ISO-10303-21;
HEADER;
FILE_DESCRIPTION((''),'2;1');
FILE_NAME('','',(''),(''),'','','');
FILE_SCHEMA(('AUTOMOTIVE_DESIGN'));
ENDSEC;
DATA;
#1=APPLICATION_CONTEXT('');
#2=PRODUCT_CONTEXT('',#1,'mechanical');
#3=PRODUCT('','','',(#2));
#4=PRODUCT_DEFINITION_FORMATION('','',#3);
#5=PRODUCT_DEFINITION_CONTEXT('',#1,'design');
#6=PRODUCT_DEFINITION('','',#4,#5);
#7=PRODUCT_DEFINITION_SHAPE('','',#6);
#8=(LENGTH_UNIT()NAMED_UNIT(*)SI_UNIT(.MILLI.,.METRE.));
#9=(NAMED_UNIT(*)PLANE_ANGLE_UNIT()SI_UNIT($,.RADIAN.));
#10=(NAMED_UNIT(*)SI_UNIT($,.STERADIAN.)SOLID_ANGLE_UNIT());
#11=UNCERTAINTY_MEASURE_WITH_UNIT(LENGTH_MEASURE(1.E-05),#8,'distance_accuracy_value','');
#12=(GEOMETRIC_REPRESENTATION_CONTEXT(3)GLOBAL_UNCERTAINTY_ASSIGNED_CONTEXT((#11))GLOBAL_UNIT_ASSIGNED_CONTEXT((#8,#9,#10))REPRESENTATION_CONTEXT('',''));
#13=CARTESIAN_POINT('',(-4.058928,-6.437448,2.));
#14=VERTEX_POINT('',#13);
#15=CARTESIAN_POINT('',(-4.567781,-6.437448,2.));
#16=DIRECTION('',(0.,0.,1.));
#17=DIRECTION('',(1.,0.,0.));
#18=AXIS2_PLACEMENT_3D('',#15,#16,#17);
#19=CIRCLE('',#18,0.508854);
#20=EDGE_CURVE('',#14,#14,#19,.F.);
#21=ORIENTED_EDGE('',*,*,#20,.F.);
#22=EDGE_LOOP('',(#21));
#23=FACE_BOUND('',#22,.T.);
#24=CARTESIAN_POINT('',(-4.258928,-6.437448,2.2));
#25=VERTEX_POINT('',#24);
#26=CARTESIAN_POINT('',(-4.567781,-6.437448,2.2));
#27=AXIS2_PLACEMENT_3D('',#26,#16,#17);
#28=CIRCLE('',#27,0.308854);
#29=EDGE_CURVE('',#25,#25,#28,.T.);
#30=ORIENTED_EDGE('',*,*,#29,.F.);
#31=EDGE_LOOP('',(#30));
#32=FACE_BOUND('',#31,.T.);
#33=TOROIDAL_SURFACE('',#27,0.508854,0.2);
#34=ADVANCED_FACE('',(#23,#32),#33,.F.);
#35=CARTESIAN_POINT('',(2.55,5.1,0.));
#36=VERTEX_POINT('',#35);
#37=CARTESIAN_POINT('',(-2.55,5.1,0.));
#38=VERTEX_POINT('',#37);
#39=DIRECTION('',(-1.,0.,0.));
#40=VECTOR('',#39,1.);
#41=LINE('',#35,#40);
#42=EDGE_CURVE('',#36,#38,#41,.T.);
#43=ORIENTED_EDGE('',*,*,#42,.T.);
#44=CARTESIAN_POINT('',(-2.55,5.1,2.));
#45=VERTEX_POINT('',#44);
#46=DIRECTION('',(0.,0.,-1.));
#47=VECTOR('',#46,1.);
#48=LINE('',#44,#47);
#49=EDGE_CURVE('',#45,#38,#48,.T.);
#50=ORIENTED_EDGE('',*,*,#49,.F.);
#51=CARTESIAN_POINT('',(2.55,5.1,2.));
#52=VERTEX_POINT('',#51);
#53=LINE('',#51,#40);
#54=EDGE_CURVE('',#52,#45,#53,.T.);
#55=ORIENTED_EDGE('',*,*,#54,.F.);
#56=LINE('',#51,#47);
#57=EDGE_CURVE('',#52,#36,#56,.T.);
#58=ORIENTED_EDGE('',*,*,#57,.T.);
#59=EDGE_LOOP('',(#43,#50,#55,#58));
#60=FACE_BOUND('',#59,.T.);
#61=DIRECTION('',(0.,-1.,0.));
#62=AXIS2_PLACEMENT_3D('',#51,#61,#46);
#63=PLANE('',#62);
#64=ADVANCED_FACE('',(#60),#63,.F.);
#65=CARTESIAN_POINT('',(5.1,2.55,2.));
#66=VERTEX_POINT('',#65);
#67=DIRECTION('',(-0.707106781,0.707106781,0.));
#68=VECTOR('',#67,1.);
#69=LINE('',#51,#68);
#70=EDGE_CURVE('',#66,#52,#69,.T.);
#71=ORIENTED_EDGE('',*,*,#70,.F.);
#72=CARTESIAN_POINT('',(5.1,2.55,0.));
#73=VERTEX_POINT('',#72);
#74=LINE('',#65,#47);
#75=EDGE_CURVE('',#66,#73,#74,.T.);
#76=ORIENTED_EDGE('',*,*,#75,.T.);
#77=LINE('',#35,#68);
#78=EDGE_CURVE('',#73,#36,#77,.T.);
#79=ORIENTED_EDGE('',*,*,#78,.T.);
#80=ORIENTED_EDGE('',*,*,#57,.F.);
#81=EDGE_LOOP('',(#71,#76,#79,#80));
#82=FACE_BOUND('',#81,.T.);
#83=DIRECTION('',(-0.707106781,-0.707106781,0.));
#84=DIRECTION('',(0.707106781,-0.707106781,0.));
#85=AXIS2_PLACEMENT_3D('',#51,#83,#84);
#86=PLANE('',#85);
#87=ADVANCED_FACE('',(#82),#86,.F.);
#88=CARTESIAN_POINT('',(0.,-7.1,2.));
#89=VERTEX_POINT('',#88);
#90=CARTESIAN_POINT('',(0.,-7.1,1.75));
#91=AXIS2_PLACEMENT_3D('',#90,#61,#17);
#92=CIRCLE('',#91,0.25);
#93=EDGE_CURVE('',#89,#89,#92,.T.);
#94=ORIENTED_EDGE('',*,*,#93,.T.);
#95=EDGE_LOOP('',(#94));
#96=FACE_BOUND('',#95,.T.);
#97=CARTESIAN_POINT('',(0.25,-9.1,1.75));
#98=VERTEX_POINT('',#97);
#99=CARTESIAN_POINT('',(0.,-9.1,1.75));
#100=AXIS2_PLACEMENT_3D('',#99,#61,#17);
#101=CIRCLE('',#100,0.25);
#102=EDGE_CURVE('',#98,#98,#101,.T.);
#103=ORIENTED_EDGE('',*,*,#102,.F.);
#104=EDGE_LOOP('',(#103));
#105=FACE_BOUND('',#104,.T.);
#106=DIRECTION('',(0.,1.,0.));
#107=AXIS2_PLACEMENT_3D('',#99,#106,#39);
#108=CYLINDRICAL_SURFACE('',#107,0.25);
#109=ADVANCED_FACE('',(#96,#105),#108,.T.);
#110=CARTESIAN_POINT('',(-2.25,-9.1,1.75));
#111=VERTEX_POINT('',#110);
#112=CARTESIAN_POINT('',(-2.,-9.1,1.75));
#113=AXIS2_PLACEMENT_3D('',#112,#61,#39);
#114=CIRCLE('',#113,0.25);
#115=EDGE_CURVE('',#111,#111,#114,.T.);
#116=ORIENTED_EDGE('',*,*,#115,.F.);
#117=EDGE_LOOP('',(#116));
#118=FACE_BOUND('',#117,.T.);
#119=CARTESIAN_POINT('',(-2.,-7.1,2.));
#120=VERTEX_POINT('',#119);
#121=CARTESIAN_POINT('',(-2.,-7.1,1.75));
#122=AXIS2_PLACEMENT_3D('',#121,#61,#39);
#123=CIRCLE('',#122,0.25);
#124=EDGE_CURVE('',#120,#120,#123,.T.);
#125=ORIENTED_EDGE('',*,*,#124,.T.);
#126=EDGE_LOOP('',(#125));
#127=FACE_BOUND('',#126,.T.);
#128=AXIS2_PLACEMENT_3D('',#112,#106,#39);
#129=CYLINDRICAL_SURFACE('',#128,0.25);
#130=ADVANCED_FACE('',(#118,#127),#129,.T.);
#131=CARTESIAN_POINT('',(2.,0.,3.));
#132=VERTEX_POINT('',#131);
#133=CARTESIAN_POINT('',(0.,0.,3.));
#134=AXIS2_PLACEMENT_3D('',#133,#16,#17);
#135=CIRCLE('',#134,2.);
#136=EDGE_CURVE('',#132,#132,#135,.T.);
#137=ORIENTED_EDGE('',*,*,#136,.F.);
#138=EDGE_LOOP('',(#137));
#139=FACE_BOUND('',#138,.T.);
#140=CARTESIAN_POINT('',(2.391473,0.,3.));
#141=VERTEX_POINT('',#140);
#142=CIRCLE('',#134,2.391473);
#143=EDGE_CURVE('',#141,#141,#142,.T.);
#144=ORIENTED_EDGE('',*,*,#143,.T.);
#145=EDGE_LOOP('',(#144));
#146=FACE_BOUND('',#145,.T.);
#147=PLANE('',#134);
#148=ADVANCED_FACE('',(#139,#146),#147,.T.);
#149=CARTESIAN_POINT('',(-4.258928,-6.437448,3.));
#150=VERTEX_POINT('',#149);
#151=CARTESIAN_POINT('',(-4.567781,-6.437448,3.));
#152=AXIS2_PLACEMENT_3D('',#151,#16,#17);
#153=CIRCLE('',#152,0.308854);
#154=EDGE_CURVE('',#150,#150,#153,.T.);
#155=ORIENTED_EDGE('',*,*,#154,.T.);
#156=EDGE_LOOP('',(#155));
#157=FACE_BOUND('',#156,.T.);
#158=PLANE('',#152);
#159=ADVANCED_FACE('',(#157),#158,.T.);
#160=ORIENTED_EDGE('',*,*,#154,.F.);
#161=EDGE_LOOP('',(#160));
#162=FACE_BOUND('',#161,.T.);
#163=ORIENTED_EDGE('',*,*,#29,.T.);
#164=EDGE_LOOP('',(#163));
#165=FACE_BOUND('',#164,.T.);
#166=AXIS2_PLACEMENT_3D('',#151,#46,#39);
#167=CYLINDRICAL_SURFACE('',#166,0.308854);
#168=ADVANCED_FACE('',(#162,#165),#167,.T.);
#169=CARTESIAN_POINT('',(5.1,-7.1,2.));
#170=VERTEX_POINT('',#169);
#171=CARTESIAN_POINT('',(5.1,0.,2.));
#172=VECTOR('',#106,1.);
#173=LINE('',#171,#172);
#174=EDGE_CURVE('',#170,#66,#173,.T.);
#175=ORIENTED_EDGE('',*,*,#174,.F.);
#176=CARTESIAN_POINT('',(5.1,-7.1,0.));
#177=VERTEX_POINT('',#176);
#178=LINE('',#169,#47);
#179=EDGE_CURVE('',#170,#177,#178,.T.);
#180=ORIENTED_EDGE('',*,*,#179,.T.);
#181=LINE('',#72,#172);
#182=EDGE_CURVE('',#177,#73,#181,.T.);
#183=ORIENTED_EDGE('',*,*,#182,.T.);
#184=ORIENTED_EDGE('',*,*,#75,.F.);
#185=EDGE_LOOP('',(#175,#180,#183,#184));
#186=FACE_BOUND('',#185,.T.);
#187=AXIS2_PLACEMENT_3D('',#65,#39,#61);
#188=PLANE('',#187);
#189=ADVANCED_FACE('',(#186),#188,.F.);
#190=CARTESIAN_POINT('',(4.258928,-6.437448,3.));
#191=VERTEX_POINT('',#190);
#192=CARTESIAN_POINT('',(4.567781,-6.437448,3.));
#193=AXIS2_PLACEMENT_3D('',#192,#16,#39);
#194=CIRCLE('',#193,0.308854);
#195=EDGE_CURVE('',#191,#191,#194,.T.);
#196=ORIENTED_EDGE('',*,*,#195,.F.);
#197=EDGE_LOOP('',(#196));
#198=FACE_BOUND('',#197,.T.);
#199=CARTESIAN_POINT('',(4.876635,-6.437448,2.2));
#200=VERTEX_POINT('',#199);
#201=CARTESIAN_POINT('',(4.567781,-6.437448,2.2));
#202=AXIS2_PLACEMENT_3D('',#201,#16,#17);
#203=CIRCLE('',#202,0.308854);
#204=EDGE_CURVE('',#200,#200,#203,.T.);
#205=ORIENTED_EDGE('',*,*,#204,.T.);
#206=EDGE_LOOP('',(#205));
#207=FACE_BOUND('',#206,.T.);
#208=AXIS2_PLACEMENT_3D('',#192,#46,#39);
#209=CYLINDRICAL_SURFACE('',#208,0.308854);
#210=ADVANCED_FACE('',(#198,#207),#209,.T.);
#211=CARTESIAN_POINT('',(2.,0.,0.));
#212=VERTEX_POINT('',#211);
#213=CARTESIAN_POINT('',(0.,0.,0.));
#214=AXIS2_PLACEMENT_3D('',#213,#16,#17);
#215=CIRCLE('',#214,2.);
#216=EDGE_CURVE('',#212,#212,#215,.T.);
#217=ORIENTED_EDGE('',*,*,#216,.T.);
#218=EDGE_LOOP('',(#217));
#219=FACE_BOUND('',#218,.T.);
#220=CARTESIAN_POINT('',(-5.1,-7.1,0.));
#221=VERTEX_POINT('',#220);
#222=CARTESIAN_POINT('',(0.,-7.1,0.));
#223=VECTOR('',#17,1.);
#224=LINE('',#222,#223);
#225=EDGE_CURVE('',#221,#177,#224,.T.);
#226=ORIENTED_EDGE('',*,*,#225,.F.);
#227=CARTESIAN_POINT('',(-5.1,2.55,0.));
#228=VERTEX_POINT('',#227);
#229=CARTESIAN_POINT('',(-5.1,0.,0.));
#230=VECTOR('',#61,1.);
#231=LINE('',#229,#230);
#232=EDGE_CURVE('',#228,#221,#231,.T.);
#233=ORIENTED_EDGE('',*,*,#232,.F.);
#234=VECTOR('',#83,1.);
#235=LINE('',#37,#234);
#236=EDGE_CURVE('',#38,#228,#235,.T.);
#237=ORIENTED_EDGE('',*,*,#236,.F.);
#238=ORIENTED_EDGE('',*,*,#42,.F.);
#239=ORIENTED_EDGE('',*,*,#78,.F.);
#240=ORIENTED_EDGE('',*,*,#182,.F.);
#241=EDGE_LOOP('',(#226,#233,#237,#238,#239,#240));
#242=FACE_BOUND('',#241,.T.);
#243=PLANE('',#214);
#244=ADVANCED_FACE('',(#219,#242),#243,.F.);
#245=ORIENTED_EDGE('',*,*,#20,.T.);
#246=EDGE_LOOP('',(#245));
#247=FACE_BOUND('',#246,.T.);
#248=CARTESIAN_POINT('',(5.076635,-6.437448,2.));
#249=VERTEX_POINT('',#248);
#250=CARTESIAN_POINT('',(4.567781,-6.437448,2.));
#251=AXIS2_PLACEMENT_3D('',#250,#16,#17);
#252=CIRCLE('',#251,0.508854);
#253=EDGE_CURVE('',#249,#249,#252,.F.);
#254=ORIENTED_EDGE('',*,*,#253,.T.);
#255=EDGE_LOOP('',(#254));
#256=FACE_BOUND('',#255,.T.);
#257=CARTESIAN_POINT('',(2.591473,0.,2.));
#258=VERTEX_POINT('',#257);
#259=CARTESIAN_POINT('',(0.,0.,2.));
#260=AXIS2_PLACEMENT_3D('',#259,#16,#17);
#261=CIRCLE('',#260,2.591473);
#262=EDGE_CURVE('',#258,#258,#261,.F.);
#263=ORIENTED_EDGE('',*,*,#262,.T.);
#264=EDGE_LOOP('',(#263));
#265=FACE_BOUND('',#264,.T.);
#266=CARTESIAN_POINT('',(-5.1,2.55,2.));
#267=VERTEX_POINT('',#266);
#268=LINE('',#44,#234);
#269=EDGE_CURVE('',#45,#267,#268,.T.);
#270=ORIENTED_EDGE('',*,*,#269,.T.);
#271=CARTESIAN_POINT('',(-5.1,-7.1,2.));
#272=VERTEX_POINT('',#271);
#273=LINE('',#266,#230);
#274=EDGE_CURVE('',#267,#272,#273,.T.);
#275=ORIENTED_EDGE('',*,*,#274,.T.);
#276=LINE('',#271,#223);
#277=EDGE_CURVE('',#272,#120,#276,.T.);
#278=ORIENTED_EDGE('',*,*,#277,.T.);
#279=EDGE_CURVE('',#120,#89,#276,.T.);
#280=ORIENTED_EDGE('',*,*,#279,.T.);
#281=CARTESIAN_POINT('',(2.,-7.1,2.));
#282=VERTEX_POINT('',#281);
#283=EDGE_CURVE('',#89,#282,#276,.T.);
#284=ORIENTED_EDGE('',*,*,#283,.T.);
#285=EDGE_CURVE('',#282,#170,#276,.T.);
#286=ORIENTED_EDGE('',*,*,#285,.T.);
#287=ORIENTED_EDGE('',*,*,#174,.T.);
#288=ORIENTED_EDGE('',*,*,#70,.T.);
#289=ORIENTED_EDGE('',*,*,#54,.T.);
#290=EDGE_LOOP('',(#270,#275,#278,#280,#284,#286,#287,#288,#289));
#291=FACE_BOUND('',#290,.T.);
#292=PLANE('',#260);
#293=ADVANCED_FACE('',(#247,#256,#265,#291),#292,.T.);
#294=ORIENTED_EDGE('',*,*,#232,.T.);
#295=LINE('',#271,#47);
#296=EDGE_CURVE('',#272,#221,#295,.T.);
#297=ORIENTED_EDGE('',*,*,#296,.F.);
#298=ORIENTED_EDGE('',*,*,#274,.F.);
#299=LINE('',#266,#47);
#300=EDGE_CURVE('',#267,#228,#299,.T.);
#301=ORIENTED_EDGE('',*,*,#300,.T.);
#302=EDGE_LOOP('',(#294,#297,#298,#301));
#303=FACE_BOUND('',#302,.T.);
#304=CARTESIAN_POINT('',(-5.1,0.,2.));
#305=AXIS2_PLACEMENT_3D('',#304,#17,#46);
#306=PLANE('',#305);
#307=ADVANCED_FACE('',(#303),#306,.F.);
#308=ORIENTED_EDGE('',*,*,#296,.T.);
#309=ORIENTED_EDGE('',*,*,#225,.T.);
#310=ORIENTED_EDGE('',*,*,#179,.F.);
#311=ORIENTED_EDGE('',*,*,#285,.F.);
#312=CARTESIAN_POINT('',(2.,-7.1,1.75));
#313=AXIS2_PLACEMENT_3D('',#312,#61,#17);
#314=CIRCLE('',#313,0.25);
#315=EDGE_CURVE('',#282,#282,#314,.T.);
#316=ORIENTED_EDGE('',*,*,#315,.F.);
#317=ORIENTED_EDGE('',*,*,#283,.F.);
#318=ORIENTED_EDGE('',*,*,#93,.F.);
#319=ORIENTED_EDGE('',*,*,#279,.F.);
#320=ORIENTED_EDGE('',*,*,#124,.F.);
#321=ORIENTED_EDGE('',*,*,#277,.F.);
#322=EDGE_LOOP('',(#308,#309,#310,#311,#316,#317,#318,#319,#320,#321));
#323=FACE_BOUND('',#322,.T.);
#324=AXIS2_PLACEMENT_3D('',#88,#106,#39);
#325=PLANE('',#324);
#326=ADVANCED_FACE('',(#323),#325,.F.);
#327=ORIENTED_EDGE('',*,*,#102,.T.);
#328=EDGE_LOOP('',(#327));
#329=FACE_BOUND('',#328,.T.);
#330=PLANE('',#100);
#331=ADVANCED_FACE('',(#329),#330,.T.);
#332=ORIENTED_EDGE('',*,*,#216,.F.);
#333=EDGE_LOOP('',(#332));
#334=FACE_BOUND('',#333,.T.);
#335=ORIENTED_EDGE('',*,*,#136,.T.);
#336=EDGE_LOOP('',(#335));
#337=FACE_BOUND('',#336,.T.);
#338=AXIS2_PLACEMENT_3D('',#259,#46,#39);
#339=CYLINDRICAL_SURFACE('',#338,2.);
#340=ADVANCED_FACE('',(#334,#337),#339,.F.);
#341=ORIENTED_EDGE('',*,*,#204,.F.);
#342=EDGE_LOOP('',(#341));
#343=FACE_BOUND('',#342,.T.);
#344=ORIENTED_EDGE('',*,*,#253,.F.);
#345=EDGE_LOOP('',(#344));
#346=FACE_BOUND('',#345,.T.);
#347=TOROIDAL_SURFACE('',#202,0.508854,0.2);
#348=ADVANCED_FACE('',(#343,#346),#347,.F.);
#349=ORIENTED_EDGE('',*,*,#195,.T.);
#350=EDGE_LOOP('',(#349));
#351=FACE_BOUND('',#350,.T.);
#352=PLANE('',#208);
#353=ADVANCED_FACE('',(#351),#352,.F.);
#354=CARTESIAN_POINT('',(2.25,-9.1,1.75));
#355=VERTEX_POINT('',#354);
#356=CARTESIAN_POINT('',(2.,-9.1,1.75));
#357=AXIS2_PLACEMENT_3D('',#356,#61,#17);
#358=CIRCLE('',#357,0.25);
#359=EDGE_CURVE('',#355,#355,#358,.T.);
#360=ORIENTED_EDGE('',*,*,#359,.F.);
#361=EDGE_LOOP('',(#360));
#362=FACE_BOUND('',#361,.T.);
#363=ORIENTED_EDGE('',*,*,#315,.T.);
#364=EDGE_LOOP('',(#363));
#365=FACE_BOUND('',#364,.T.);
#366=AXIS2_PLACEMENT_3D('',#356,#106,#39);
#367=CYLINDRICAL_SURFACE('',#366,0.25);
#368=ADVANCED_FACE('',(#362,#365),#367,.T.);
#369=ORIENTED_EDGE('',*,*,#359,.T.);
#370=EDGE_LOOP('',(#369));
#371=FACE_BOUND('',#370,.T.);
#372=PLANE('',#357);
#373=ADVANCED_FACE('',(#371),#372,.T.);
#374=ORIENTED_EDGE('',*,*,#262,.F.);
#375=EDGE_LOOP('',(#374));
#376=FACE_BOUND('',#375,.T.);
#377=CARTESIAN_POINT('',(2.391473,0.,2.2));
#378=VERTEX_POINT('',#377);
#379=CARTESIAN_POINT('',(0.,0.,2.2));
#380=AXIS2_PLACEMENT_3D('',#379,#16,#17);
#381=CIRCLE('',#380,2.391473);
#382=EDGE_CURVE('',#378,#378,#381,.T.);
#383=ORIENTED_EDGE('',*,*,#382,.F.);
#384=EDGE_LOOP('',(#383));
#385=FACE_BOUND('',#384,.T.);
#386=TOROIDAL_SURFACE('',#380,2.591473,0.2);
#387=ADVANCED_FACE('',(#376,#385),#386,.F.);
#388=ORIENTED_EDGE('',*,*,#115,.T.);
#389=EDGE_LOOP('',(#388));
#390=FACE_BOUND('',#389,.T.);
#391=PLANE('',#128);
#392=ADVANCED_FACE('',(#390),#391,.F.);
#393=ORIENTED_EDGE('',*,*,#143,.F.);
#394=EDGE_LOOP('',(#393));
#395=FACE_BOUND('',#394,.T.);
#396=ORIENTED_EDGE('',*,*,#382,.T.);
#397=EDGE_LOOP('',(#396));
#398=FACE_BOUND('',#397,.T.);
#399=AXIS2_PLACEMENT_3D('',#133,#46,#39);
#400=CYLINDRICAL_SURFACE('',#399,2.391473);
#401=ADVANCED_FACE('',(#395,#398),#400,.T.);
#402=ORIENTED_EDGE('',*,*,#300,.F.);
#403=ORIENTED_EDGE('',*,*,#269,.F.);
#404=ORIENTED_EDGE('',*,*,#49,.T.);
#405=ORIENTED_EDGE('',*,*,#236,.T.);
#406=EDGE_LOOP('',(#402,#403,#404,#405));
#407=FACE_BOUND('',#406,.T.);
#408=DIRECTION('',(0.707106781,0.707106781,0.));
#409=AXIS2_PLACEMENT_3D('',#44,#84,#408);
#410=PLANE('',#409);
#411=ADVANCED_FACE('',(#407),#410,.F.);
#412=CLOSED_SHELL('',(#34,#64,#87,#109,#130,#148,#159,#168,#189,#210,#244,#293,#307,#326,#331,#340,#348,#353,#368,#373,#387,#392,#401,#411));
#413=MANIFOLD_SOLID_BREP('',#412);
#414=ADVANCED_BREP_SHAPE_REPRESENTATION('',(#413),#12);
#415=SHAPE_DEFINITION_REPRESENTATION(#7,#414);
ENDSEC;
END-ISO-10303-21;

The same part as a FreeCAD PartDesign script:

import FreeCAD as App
import Part
import Sketcher
from FreeCAD import Vector


def edges_at(feature, points):
    """Names of the edges that pass closest to the given points."""
    edges = feature.Shape.Edges
    near = lambda p: min(range(len(edges)), key=lambda i: edges[i].distToShape(Part.Vertex(*p))[0])
    return sorted({f"Edge{near(p) + 1}" for p in points})


def add_polygon(sketch, points):
    """Adds a closed chain of lines whose ends are joined by coincident constraints."""
    first, n = sketch.GeometryCount, len(points)
    for a, b in zip(points, points[1:] + points[:1]):
        sketch.addGeometry(Part.LineSegment(App.Vector(*a, 0), App.Vector(*b, 0)), False)
    for i in range(n):
        sketch.addConstraint(Sketcher.Constraint("Coincident", first + i, 2, first + (i + 1) % n, 1))

doc = App.newDocument("Part")
body = doc.addObject("PartDesign::Body", "Body")

sketch1 = doc.addObject("Sketcher::SketchObject", "Sketch")
body.addObject(sketch1)
sketch1.AttachmentSupport = (doc.XY_Plane, [""])
sketch1.MapMode = "FlatFace"
add_polygon(sketch1, [(5.1, -7.1), (5.1, 2.5), (2.5, 5.1), (-2.5, 5.1), (-5.1, 2.5), (-5.1, -7.1)])
sketch1.addGeometry(Part.Circle(Vector(0, 0, 0), Vector(0, 0, 1), 2), False)
sketch1.addConstraint(Sketcher.Constraint("Vertical", 0))
sketch1.addConstraint(Sketcher.Constraint("Horizontal", 2))
sketch1.addConstraint(Sketcher.Constraint("Vertical", 4))
sketch1.addConstraint(Sketcher.Constraint("Horizontal", 5))
sketch1.addConstraint(Sketcher.Constraint("Coincident", 6, 3, -1, 1))
sketch1.addConstraint(Sketcher.Constraint("Symmetric", 0, 2, 3, 2, -2))
sketch1.addConstraint(Sketcher.Constraint("Perpendicular", 1, 3))
sketch1.addConstraint(Sketcher.Constraint("Equal", 1, 3))
sketch1.addConstraint(Sketcher.Constraint("Diameter", 6, 4.0))
sketch1.addConstraint(Sketcher.Constraint("DistanceX", 2, 2, 2, 1, 5.1))
sketch1.addConstraint(Sketcher.Constraint("DistanceX", 5, 1, 5, 2, 10.2))
sketch1.addConstraint(Sketcher.Constraint("DistanceY", 0, 1, 0, 2, 9.65))
sketch1.addConstraint(Sketcher.Constraint("DistanceY", -1, 1, 1, 2, 5.1))
pad1 = doc.addObject("PartDesign::Pad", "Pad")
body.addObject(pad1)
pad1.Profile = sketch1
pad1.Length = 2

sketch2 = doc.addObject("Sketcher::SketchObject", "Sketch001")
body.addObject(sketch2)
sketch2.AttachmentSupport = (doc.XY_Plane, [""])
sketch2.MapMode = "FlatFace"
sketch2.AttachmentOffset = App.Placement(Vector(0, 0, 2), App.Rotation())
sketch2.addGeometry(Part.Circle(Vector(0, 0, 0), Vector(0, 0, 1), 2.39), False)
sketch2.addGeometry(Part.Circle(Vector(0, 0, 0), Vector(0, 0, 1), 2), False)
sketch2.addGeometry(Part.Circle(Vector(-4.57, -6.44, 0), Vector(0, 0, 1), 0.31), False)
sketch2.addGeometry(Part.Circle(Vector(4.57, -6.44, 0), Vector(0, 0, 1), 0.31), False)
sketch2.addConstraint(Sketcher.Constraint("Coincident", 0, 3, -1, 1))
sketch2.addConstraint(Sketcher.Constraint("Coincident", 1, 3, -1, 1))
sketch2.addConstraint(Sketcher.Constraint("Equal", 2, 3))
sketch2.addConstraint(Sketcher.Constraint("Symmetric", 2, 3, 3, 3, -2))
sketch2.addConstraint(Sketcher.Constraint("Diameter", 1, 4.0))
sketch2.addConstraint(Sketcher.Constraint("Diameter", 0, 4.782947))
sketch2.addConstraint(Sketcher.Constraint("Diameter", 2, 0.617707))
sketch2.addConstraint(Sketcher.Constraint("DistanceX", 2, 3, -1, 1, 4.567781))
sketch2.addConstraint(Sketcher.Constraint("DistanceY", 2, 3, -1, 1, 6.437448))
pad2 = doc.addObject("PartDesign::Pad", "Pad001")
body.addObject(pad2)
pad2.Profile = sketch2
pad2.Length = 1
doc.recompute()

fillet = doc.addObject("PartDesign::Fillet", "Fillet")
body.addObject(fillet)
fillet.Base = (pad2, edges_at(pad2, [(-4.877, -6.437, 2), (4.877, -6.437, 2), (-2.391, 0, 2)]))
fillet.Radius = 0.2

sketch3 = doc.addObject("Sketcher::SketchObject", "Sketch002")
body.addObject(sketch3)
sketch3.AttachmentSupport = (doc.XZ_Plane, [""])
sketch3.MapMode = "FlatFace"
sketch3.AttachmentOffset = App.Placement(Vector(0, 0, 7.1), App.Rotation())
sketch3.addGeometry(Part.Circle(Vector(0, 1.75, 0), Vector(0, 0, 1), 0.25), False)
sketch3.addGeometry(Part.Circle(Vector(2, 1.75, 0), Vector(0, 0, 1), 0.25), False)
sketch3.addGeometry(Part.Circle(Vector(-2, 1.75, 0), Vector(0, 0, 1), 0.25), False)
sketch3.addConstraint(Sketcher.Constraint("Equal", 0, 1))
sketch3.addConstraint(Sketcher.Constraint("Equal", 1, 2))
sketch3.addConstraint(Sketcher.Constraint("Symmetric", 1, 3, 2, 3, -2))
sketch3.addConstraint(Sketcher.Constraint("PointOnObject", 0, 3, -2))
sketch3.addConstraint(Sketcher.Constraint("Horizontal", 0, 3, 1, 3))
sketch3.addConstraint(Sketcher.Constraint("Diameter", 0, 0.5))
sketch3.addConstraint(Sketcher.Constraint("DistanceX", -1, 1, 1, 3, 2.0))
sketch3.addConstraint(Sketcher.Constraint("DistanceY", -1, 1, 0, 3, 1.75))
pad3 = doc.addObject("PartDesign::Pad", "Pad002")
body.addObject(pad3)
pad3.Profile = sketch3
pad3.Length = 2

doc.recompute()
